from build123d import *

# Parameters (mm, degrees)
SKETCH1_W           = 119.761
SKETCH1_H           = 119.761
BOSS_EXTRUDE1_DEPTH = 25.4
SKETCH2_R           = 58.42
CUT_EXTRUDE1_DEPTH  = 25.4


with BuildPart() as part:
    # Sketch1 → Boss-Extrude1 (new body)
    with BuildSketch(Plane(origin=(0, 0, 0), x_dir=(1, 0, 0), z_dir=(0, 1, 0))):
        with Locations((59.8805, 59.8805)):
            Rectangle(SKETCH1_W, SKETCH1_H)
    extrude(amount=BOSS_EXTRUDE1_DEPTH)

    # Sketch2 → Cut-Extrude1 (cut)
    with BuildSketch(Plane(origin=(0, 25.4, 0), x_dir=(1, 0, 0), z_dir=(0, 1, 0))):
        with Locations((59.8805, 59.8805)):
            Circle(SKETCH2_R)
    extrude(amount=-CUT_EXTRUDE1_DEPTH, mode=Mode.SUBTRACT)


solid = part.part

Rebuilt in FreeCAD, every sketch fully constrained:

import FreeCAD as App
import Part
import Sketcher
Q = App.Units.Quantity


def add_polygon(sketch, points):
    """Adds a closed chain of lines whose ends are joined by coincident constraints."""
    first, n = sketch.GeometryCount, len(points)
    for a, b in zip(points, points[1:] + points[:1]):
        sketch.addGeometry(Part.LineSegment(App.Vector(*a, 0), App.Vector(*b, 0)), False)
    for i in range(n):
        sketch.addConstraint(Sketcher.Constraint("Coincident", first + i, 2, first + (i + 1) % n, 1))

doc = App.newDocument("Part")
body = doc.addObject("PartDesign::Body", "Body")

# Sketch on XZ plane
sketch1 = body.newObject("Sketcher::SketchObject", "Sketch")
sketch1.AttachmentSupport = (doc.getObject("XZ_Plane"), [""])
sketch1.MapMode = "FlatFace"
add_polygon(sketch1, [(0, -120), (0, 0), (120, 0), (120, -120)])  # lines 0-3
sketch1.addConstraint([
    Sketcher.Constraint("Vertical", 0),
    Sketcher.Constraint("Horizontal", 1),
    Sketcher.Constraint("Vertical", 2),
    Sketcher.Constraint("Horizontal", 3),
    Sketcher.Constraint("Coincident", 0, 2, -1, 1),
    Sketcher.Constraint("Equal", 3, 0),
    Sketcher.Constraint("DistanceX", 1, 1, 1, 2, Q("4.715 in")),
])
pad1 = body.newObject("PartDesign::Pad", "Pad")
pad1.Profile = sketch1
pad1.Length = Q("1 in")
pad1.Reversed = True

# Sketch on XZ plane
sketch2 = body.newObject("Sketcher::SketchObject", "Sketch001")
sketch2.AttachmentSupport = (doc.getObject("XZ_Plane"), [""])
sketch2.MapMode = "FlatFace"
sketch2.AttachmentOffset = App.Placement(App.Vector(0, 0, -1 * 25.4), App.Rotation())
sketch2.addGeometry(Part.Circle(App.Vector(60, -60, 0), App.Vector(0, 0, 1), 58), False)
sketch2.addConstraint([
    Sketcher.Constraint("Diameter", 0, Q("4.6 in")),
    Sketcher.Constraint("DistanceX", -1, 1, 0, 3, Q("2.3575 in")),
    Sketcher.Constraint("DistanceY", 0, 3, -1, 1, Q("2.3575 in")),
])
pocket1 = body.newObject("PartDesign::Pocket", "Pocket")
pocket1.Profile = sketch2
pocket1.Length = Q("1 in")
pocket1.Reversed = True

doc.recompute()
